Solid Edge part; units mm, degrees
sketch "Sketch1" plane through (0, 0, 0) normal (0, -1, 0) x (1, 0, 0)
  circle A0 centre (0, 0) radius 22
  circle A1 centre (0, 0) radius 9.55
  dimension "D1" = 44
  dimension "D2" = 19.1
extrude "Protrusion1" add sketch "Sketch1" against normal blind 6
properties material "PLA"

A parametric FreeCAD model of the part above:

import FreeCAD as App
import Part
import Sketcher

V = App.Vector

doc = App.newDocument("Part")
body = doc.addObject("PartDesign::Body", "Body")

# Sketch on XZ plane
sketch1 = doc.addObject("Sketcher::SketchObject", "Sketch")
body.addObject(sketch1)
sketch1.AttachmentSupport = (doc.XZ_Plane, [""])
sketch1.MapMode = "FlatFace"
sketch1.addGeometry(Part.Circle(V(0, 0, 0), V(0, 0, 1), 22), False)
sketch1.addGeometry(Part.Circle(V(0, 0, 0), V(0, 0, 1), 10), False)
sketch1.addConstraint(Sketcher.Constraint("Coincident", 0, 3, -1, 1))
sketch1.addConstraint(Sketcher.Constraint("Coincident", 1, 3, -1, 1))
sketch1.addConstraint(Sketcher.Constraint("Diameter", 0, 44.0))
sketch1.addConstraint(Sketcher.Constraint("Diameter", 1, 19.1))
pad1 = doc.addObject("PartDesign::Pad", "Pad")
body.addObject(pad1)
pad1.Profile = sketch1
pad1.Length = 6
pad1.Reversed = True

doc.recompute()
